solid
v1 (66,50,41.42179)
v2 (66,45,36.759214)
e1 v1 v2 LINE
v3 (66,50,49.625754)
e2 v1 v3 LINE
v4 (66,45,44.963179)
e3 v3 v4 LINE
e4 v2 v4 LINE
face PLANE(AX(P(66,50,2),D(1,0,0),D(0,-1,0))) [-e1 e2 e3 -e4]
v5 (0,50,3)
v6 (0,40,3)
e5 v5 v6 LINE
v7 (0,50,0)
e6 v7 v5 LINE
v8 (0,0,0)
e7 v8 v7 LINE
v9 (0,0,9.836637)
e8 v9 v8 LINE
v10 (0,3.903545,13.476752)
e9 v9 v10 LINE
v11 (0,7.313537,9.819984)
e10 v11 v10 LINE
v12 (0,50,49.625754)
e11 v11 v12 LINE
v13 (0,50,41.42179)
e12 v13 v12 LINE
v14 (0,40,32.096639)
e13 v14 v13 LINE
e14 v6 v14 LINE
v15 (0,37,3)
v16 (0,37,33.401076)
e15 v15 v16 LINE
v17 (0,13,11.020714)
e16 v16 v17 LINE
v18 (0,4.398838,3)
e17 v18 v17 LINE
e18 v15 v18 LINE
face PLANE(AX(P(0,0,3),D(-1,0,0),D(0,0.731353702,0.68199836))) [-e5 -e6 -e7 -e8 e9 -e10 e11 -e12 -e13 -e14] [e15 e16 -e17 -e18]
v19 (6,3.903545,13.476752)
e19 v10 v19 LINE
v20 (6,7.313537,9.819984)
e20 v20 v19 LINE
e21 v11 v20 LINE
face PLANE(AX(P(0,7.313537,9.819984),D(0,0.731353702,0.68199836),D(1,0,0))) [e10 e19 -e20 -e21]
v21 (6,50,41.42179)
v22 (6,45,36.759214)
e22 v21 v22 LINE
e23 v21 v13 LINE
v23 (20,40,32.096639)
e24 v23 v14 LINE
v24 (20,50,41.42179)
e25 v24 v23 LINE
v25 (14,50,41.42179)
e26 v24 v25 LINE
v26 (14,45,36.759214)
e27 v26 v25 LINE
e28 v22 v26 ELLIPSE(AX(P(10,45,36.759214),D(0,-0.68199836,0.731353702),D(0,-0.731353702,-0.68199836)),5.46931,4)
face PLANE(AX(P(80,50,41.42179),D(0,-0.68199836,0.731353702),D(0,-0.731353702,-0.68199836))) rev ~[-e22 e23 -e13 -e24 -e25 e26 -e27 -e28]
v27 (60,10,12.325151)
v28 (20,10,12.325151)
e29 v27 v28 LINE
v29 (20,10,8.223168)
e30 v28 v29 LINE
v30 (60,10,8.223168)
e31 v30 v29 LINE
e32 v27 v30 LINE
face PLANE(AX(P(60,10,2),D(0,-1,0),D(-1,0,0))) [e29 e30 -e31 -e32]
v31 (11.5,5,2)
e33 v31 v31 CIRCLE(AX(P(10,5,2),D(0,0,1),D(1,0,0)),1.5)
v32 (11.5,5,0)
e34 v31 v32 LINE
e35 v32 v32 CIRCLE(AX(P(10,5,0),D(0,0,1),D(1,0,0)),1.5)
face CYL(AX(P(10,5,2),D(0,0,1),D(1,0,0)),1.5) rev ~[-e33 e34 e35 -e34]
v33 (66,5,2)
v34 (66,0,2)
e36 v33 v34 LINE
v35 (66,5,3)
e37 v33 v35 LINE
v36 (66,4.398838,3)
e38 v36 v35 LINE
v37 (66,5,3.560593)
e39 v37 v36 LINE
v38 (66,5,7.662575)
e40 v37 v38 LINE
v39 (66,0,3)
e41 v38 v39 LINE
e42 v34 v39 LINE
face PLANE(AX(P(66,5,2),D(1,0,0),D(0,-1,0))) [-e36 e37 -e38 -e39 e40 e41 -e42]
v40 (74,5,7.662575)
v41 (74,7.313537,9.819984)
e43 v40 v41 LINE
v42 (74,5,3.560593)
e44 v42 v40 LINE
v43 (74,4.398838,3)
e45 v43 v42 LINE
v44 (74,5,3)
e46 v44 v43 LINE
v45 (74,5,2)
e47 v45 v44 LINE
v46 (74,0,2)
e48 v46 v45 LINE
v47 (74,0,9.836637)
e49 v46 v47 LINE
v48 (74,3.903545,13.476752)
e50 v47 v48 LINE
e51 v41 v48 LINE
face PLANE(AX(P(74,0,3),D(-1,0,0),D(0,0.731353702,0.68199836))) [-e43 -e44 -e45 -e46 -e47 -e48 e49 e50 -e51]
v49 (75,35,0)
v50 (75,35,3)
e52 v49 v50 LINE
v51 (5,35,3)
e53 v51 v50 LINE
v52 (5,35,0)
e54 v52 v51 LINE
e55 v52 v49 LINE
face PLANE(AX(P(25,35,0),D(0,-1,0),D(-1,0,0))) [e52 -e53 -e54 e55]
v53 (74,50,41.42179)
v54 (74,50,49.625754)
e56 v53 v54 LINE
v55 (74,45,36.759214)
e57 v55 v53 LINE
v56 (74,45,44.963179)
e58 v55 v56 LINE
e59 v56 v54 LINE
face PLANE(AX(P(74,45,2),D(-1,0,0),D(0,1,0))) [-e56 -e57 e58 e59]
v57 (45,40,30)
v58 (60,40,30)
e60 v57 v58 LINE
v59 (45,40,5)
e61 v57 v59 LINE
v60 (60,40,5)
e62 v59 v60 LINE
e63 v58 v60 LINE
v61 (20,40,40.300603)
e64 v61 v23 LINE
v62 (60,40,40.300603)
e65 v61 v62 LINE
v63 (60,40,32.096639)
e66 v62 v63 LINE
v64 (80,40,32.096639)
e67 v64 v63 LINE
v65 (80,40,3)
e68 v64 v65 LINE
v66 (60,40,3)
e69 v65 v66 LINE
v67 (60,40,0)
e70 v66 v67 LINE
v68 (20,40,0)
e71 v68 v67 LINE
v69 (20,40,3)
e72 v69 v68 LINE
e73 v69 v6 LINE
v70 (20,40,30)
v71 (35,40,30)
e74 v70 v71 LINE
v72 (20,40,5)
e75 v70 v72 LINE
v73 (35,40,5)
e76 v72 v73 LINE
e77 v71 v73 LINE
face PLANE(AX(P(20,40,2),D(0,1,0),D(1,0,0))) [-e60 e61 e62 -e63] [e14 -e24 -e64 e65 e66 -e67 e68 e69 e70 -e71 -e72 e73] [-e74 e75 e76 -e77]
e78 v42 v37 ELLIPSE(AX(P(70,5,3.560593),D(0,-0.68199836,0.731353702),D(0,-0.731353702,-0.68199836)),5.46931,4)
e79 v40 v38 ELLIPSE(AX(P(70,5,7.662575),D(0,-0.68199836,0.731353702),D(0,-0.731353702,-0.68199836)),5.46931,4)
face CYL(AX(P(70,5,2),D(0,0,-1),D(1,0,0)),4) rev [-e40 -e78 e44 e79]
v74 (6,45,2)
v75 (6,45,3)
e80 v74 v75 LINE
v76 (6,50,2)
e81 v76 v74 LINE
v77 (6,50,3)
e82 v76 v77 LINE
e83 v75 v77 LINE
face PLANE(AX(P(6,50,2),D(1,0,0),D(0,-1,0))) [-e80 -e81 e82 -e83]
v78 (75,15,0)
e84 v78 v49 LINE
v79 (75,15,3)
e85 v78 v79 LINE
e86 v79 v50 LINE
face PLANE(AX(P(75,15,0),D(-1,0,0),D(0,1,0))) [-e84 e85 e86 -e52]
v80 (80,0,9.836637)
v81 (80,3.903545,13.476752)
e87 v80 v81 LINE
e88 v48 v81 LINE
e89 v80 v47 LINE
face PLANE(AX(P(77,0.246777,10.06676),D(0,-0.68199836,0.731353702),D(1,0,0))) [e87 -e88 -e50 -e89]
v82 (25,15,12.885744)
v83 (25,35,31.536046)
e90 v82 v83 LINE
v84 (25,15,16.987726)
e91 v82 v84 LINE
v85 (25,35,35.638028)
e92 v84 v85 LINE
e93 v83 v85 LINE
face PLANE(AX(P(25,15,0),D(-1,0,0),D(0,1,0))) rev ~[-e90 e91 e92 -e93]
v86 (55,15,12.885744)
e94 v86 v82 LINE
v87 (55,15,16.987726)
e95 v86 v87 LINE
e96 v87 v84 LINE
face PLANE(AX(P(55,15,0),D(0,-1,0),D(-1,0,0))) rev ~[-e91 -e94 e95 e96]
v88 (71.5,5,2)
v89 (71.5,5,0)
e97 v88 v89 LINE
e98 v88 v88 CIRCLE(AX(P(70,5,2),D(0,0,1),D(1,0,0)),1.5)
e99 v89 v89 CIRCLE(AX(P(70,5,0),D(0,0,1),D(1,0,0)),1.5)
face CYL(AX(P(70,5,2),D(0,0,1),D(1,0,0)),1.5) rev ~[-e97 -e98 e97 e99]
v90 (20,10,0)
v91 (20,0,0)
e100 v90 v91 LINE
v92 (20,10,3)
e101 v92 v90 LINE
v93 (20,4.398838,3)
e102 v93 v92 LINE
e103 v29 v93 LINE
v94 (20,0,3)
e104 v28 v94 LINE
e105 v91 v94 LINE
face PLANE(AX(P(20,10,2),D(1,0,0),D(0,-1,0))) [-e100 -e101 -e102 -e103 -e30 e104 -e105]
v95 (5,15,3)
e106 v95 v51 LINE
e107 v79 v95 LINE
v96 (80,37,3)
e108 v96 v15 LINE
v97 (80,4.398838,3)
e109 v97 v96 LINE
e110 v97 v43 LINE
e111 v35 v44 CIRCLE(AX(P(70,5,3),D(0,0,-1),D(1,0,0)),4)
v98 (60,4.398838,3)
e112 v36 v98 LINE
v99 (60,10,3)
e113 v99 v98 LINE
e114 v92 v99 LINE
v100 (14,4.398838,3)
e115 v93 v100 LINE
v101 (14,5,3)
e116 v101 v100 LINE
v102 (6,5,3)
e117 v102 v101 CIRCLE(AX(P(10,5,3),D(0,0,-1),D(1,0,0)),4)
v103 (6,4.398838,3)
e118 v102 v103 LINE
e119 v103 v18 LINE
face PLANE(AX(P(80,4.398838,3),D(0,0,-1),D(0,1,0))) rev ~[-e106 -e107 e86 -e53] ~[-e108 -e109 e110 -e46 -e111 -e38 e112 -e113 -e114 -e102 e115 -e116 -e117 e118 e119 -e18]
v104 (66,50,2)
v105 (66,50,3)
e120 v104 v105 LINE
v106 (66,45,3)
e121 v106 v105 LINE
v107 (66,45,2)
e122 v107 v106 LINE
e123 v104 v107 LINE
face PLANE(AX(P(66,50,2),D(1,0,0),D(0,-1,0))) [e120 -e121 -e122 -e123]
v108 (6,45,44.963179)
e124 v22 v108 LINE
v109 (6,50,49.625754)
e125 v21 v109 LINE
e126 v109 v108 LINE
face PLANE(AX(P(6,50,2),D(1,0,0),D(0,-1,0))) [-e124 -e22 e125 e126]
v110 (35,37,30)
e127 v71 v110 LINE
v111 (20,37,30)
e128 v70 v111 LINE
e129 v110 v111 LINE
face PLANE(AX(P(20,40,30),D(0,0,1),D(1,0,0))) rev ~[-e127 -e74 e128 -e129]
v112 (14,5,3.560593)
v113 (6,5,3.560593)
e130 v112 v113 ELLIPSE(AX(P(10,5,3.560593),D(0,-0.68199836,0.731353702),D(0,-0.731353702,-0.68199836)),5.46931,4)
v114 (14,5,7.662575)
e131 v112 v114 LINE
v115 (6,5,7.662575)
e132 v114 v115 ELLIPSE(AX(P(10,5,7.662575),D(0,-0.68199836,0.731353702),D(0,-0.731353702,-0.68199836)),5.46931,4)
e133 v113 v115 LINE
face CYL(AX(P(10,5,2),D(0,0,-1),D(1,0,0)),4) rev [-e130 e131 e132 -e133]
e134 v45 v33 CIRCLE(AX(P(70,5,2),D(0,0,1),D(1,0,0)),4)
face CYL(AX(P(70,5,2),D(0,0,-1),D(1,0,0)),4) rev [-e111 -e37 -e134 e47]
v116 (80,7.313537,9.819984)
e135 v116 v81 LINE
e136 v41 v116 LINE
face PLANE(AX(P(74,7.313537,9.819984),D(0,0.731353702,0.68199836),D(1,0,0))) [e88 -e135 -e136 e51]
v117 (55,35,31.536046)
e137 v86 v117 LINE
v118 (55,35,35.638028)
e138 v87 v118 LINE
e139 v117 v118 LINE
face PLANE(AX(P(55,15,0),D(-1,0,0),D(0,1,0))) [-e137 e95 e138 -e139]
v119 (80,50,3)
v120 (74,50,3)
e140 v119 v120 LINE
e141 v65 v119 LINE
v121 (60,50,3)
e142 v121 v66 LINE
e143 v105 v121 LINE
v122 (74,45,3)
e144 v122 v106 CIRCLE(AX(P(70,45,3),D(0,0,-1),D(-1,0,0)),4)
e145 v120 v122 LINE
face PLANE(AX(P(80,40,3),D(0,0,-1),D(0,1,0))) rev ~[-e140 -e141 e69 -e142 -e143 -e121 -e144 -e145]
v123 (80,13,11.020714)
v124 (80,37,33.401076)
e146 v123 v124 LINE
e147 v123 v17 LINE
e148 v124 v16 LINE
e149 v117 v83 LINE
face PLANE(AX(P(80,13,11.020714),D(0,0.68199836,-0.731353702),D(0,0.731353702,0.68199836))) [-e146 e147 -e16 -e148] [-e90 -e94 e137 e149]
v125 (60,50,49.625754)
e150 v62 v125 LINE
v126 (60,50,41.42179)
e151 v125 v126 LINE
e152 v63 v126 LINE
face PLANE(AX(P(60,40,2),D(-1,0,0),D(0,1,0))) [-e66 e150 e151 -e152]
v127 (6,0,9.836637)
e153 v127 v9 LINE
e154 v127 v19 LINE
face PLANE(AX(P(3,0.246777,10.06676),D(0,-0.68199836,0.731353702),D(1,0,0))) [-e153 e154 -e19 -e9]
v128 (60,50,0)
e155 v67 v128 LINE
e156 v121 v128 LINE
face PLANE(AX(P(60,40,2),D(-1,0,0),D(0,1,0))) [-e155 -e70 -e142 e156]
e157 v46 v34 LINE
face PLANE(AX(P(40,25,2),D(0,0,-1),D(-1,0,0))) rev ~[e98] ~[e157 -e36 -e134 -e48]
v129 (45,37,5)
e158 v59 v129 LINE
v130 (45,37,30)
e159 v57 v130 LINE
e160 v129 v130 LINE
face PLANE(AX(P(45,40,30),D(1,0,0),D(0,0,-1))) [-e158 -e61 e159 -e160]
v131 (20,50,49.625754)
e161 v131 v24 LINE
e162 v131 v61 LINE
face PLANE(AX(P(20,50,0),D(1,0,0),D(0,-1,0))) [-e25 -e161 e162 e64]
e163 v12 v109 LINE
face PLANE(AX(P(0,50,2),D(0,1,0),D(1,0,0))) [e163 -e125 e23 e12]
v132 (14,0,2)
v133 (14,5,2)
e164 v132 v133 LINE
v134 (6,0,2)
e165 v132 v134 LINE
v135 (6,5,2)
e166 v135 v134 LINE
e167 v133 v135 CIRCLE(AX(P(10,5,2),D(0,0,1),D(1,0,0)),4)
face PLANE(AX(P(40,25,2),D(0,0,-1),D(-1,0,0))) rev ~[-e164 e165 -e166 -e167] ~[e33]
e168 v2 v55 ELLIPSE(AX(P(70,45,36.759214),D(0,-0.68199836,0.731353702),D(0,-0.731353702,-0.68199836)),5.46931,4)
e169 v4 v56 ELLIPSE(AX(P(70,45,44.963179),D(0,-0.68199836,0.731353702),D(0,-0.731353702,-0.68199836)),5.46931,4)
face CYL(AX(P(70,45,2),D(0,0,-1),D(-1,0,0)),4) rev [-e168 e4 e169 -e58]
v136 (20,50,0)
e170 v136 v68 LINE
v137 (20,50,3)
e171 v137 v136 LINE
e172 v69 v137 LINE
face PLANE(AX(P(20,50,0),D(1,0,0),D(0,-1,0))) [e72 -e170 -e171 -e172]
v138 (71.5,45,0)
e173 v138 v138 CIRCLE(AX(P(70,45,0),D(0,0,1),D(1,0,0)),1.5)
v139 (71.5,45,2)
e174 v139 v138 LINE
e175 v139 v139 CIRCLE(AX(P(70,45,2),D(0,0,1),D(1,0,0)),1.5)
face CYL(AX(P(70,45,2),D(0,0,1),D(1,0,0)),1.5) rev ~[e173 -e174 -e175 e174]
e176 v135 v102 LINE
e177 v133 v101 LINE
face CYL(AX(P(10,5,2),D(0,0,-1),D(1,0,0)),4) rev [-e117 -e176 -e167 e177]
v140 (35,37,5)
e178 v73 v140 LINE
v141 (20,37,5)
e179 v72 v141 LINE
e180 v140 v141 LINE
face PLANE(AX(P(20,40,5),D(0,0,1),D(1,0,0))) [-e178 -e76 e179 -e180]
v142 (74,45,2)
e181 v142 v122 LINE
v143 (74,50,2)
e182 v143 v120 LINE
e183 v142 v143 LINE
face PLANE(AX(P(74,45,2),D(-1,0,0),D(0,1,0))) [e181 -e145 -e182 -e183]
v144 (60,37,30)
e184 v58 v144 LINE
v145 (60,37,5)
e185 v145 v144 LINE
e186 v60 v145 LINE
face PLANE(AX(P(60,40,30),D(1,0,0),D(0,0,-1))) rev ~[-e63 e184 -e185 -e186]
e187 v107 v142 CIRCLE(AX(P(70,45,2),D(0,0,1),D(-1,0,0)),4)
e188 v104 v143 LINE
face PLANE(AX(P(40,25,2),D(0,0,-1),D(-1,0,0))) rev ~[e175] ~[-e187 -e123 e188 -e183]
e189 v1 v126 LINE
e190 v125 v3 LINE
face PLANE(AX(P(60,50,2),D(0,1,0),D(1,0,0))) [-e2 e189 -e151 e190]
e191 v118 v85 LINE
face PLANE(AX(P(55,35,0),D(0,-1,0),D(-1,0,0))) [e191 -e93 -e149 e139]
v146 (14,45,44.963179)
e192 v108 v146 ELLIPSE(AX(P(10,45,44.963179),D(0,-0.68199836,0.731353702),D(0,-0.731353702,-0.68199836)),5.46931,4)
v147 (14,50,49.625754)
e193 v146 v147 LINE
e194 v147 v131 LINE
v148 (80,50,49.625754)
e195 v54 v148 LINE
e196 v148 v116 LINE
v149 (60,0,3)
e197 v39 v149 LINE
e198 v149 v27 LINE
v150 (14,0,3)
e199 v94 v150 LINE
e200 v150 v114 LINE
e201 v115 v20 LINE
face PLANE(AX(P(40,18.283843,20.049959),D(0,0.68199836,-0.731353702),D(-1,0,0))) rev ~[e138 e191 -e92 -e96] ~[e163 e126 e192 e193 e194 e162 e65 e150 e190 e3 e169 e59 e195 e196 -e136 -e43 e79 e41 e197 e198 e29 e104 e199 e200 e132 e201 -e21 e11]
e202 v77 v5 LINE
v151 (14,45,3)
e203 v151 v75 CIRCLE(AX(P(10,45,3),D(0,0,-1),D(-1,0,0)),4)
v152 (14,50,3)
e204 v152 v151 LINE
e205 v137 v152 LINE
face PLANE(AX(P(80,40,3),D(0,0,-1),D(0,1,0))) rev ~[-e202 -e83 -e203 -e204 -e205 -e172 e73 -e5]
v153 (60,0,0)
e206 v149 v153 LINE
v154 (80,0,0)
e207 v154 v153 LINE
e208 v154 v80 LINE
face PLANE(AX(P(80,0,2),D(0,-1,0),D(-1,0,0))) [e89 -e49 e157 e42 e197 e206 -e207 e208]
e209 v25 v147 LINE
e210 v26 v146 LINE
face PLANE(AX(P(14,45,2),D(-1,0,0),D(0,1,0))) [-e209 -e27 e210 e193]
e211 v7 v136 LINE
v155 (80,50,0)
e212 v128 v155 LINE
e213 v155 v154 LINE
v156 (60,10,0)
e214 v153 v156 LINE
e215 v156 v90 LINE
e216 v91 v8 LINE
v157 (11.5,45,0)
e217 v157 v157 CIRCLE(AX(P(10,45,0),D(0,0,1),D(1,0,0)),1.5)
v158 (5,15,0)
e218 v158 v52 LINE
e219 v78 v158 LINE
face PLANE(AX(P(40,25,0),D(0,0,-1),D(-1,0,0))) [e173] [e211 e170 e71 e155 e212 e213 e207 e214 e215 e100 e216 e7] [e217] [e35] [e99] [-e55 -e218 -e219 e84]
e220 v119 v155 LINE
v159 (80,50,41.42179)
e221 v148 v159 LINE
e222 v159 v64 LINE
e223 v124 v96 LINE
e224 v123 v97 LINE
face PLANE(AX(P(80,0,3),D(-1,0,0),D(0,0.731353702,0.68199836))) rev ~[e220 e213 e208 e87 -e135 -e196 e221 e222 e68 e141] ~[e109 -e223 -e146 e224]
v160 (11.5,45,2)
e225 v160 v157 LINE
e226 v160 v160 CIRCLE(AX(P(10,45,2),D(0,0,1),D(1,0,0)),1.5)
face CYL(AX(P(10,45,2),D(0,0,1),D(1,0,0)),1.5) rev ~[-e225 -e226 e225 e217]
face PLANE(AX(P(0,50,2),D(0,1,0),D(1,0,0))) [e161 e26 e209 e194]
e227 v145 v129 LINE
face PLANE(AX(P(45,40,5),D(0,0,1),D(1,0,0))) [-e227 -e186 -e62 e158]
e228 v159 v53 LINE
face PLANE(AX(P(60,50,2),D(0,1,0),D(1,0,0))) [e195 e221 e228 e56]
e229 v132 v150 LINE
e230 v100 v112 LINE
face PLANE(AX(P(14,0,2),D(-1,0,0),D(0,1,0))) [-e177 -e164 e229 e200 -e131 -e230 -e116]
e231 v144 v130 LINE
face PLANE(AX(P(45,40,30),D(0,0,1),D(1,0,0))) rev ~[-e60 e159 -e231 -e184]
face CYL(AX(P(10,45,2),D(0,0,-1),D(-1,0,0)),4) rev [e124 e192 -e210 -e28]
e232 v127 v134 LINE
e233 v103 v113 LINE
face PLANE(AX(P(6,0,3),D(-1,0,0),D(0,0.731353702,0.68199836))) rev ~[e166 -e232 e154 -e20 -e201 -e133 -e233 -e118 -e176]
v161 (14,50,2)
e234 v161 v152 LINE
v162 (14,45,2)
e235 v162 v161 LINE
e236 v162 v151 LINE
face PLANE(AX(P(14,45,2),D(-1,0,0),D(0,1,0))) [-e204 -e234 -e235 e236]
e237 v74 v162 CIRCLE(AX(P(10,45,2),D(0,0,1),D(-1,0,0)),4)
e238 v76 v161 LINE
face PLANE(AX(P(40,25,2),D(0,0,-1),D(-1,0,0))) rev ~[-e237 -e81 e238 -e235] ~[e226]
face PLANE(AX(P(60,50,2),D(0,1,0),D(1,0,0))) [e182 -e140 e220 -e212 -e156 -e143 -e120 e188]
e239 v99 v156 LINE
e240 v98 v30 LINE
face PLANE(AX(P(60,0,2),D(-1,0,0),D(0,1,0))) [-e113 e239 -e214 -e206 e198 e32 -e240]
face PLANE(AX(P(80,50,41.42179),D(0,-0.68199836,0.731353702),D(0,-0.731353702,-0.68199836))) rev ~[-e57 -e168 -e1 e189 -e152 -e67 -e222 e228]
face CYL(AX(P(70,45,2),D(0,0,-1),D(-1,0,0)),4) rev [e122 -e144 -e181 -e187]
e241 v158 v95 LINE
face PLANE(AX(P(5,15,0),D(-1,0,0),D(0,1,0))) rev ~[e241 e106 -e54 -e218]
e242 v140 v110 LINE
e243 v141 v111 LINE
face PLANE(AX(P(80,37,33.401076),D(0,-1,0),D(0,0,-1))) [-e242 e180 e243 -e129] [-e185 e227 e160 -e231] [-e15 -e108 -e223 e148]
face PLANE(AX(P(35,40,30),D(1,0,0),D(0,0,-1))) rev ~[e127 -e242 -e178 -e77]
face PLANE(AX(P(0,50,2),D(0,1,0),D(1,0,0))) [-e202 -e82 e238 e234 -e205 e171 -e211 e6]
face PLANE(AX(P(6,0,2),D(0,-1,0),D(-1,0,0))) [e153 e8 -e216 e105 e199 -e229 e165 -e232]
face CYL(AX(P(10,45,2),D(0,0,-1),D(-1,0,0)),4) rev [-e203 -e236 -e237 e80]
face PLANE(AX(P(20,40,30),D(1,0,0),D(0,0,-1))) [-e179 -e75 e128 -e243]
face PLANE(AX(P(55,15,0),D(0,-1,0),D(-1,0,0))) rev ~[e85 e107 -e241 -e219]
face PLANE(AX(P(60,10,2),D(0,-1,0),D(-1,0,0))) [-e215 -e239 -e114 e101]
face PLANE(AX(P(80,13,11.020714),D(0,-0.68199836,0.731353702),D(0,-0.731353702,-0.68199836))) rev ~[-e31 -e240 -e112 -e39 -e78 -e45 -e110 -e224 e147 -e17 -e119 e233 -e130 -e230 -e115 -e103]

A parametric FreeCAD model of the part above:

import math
import FreeCAD as App
import Part
import Sketcher
from FreeCAD import Vector
Q = App.Units.Quantity


def faces_at(feature, points):
    """Names of the faces that lie closest to the given points."""
    faces = feature.Shape.Faces
    near = lambda p: min(range(len(faces)), key=lambda i: faces[i].distToShape(Part.Vertex(*p))[0])
    return sorted({f"Face{near(p) + 1}" for p in points})


def add_polygon(sketch, points):
    """Adds a closed chain of lines whose ends are joined by coincident constraints."""
    first, n = sketch.GeometryCount, len(points)
    for a, b in zip(points, points[1:] + points[:1]):
        sketch.addGeometry(Part.LineSegment(App.Vector(*a, 0), App.Vector(*b, 0)), False)
    for i in range(n):
        sketch.addConstraint(Sketcher.Constraint("Coincident", first + i, 2, first + (i + 1) % n, 1))

doc = App.newDocument("Part")
body = doc.addObject("PartDesign::Body", "Body")

sketch1 = body.newObject("Sketcher::SketchObject", "Sketch")
sketch1.AttachmentSupport = (doc.getObject("XY_Plane"), [""])
sketch1.MapMode = "FlatFace"
add_polygon(sketch1, [(0, 50), (0, 0), (20, 0), (20, 10), (60, 10), (60, 0), (80, 0), (80, 50), (60, 50), (60, 40), (20, 40), (20, 50)])
sketch1.addConstraint(Sketcher.Constraint("Vertical", 0))
sketch1.addConstraint(Sketcher.Constraint("Horizontal", 1))
sketch1.addConstraint(Sketcher.Constraint("Vertical", 2))
sketch1.addConstraint(Sketcher.Constraint("Horizontal", 3))
sketch1.addConstraint(Sketcher.Constraint("Vertical", 4))
sketch1.addConstraint(Sketcher.Constraint("Horizontal", 5))
sketch1.addConstraint(Sketcher.Constraint("Vertical", 6))
sketch1.addConstraint(Sketcher.Constraint("Horizontal", 7))
sketch1.addConstraint(Sketcher.Constraint("Vertical", 8))
sketch1.addConstraint(Sketcher.Constraint("Horizontal", 9))
sketch1.addConstraint(Sketcher.Constraint("Vertical", 10))
sketch1.addConstraint(Sketcher.Constraint("Horizontal", 11))
sketch1.addConstraint(Sketcher.Constraint("Coincident", 0, 2, -1, 1))
sketch1.addConstraint(Sketcher.Constraint("PointOnObject", 4, 2, -1))
sketch1.addConstraint(Sketcher.Constraint("Horizontal", 7, 2, 10, 2))
sketch1.addConstraint(Sketcher.Constraint("Vertical", 4, 2, 7, 2))
sketch1.addConstraint(Sketcher.Constraint("Vertical", 2, 2, 9, 2))
sketch1.addConstraint(Sketcher.Constraint("Equal", 1, 5))
sketch1.addConstraint(Sketcher.Constraint("Equal", 4, 8))
sketch1.addConstraint(Sketcher.Constraint("DistanceX", 1, 1, 1, 2, Q("20 mm")))
sketch1.addConstraint(Sketcher.Constraint("DistanceX", 3, 1, 3, 2, Q("40 mm")))
sketch1.addConstraint(Sketcher.Constraint("DistanceY", 0, 2, 0, 1, Q("50 mm")))
sketch1.addConstraint(Sketcher.Constraint("DistanceY", 2, 1, 2, 2, Q("10 mm")))
pad1 = body.newObject("PartDesign::Pad", "Pad")
pad1.Profile = sketch1
pad1.Length = 2

sketch2 = body.newObject("Sketcher::SketchObject", "Sketch001")
sketch2.AttachmentSupport = (doc.getObject("XY_Plane"), [""])
sketch2.MapMode = "FlatFace"
sketch2.AttachmentOffset = App.Placement(Vector(0, 0, 2), App.Rotation())
sketch2.addGeometry(Part.Circle(Vector(10, 45, 0), Vector(0, 0, 1), 1.5), False)
sketch2.addGeometry(Part.Circle(Vector(10, 5, 0), Vector(0, 0, 1), 1.5), False)
sketch2.addGeometry(Part.Circle(Vector(70, 45, 0), Vector(0, 0, 1), 1.5), False)
sketch2.addGeometry(Part.Circle(Vector(70, 5, 0), Vector(0, 0, 1), 1.5), False)
sketch2.addConstraint(Sketcher.Constraint("Equal", 0, 1))
sketch2.addConstraint(Sketcher.Constraint("Equal", 1, 2))
sketch2.addConstraint(Sketcher.Constraint("Equal", 2, 3))
sketch2.addConstraint(Sketcher.Constraint("Horizontal", 0, 3, 2, 3))
sketch2.addConstraint(Sketcher.Constraint("Horizontal", 1, 3, 3, 3))
sketch2.addConstraint(Sketcher.Constraint("Vertical", 0, 3, 1, 3))
sketch2.addConstraint(Sketcher.Constraint("Vertical", 2, 3, 3, 3))
sketch2.addConstraint(Sketcher.Constraint("Diameter", 0, Q("3 mm")))
sketch2.addConstraint(Sketcher.Constraint("DistanceX", -1, 1, 0, 3, Q("10 mm")))
sketch2.addConstraint(Sketcher.Constraint("DistanceY", -1, 1, 0, 3, Q("45 mm")))
sketch2.addConstraint(Sketcher.Constraint("DistanceY", -1, 1, 1, 3, Q("5 mm")))
sketch2.addConstraint(Sketcher.Constraint("DistanceX", -1, 1, 2, 3, Q("70 mm")))
pocket1 = body.newObject("PartDesign::Pocket", "Pocket")
pocket1.Profile = sketch2
pocket1.Type = "ThroughAll"

sketch3 = body.newObject("Sketcher::SketchObject", "Sketch002")
sketch3.AttachmentSupport = (doc.getObject("XY_Plane"), [""])
sketch3.MapMode = "FlatFace"
sketch3.AttachmentOffset = App.Placement(Vector(0, 0, 2), App.Rotation())
sketch3.addGeometry(Part.LineSegment(Vector(6, 50, 0), Vector(0, 50, 0)), False)
sketch3.addGeometry(Part.LineSegment(Vector(0, 50, 0), Vector(0, 0, 0)), False)
sketch3.addGeometry(Part.LineSegment(Vector(0, 0, 0), Vector(6, 0, 0)), False)
sketch3.addGeometry(Part.LineSegment(Vector(6, 0, 0), Vector(6, 5, 0)), False)
sketch3.addGeometry(Part.ArcOfCircle(Part.Circle(Vector(10, 5, 0), Vector(0, 0, 1), 4), math.radians(0), math.radians(180)), False)
sketch3.addGeometry(Part.LineSegment(Vector(14, 5, 0), Vector(14, 0, 0)), False)
sketch3.addGeometry(Part.LineSegment(Vector(14, 0, 0), Vector(20, 0, 0)), False)
sketch3.addGeometry(Part.LineSegment(Vector(20, 0, 0), Vector(20, 10, 0)), False)
sketch3.addGeometry(Part.LineSegment(Vector(20, 10, 0), Vector(60, 10, 0)), False)
sketch3.addGeometry(Part.LineSegment(Vector(60, 10, 0), Vector(60, 0, 0)), False)
sketch3.addGeometry(Part.LineSegment(Vector(60, 0, 0), Vector(66, 0, 0)), False)
sketch3.addGeometry(Part.LineSegment(Vector(66, 0, 0), Vector(66, 5, 0)), False)
sketch3.addGeometry(Part.ArcOfCircle(Part.Circle(Vector(70, 5, 0), Vector(0, 0, 1), 4), math.radians(0), math.radians(180)), False)
sketch3.addGeometry(Part.LineSegment(Vector(74, 5, 0), Vector(74, 0, 0)), False)
sketch3.addGeometry(Part.LineSegment(Vector(74, 0, 0), Vector(80, 0, 0)), False)
sketch3.addGeometry(Part.LineSegment(Vector(80, 0, 0), Vector(80, 50, 0)), False)
sketch3.addGeometry(Part.LineSegment(Vector(80, 50, 0), Vector(74, 50, 0)), False)
sketch3.addGeometry(Part.LineSegment(Vector(74, 50, 0), Vector(74, 45, 0)), False)
sketch3.addGeometry(Part.ArcOfCircle(Part.Circle(Vector(70, 45, 0), Vector(0, 0, 1), 4), math.radians(180), math.radians(360)), False)
sketch3.addGeometry(Part.LineSegment(Vector(66, 45, 0), Vector(66, 50, 0)), False)
sketch3.addGeometry(Part.LineSegment(Vector(66, 50, 0), Vector(60, 50, 0)), False)
sketch3.addGeometry(Part.LineSegment(Vector(60, 50, 0), Vector(60, 40, 0)), False)
sketch3.addGeometry(Part.LineSegment(Vector(60, 40, 0), Vector(20, 40, 0)), False)
sketch3.addGeometry(Part.LineSegment(Vector(20, 40, 0), Vector(20, 50, 0)), False)
sketch3.addGeometry(Part.LineSegment(Vector(20, 50, 0), Vector(14, 50, 0)), False)
sketch3.addGeometry(Part.LineSegment(Vector(14, 50, 0), Vector(14, 45, 0)), False)
sketch3.addGeometry(Part.ArcOfCircle(Part.Circle(Vector(10, 45, 0), Vector(0, 0, 1), 4), math.radians(180), math.radians(360)), False)
sketch3.addGeometry(Part.LineSegment(Vector(6, 45, 0), Vector(6, 50, 0)), False)
sketch3.addConstraint(Sketcher.Constraint("Coincident", 0, 2, 1, 1))
sketch3.addConstraint(Sketcher.Constraint("Coincident", 1, 2, 2, 1))
sketch3.addConstraint(Sketcher.Constraint("Coincident", 2, 2, 3, 1))
sketch3.addConstraint(Sketcher.Constraint("Tangent", 3, 2, 4, 2))
sketch3.addConstraint(Sketcher.Constraint("Tangent", 4, 1, 5, 1))
sketch3.addConstraint(Sketcher.Constraint("Coincident", 5, 2, 6, 1))
sketch3.addConstraint(Sketcher.Constraint("Coincident", 6, 2, 7, 1))
sketch3.addConstraint(Sketcher.Constraint("Coincident", 7, 2, 8, 1))
sketch3.addConstraint(Sketcher.Constraint("Coincident", 8, 2, 9, 1))
sketch3.addConstraint(Sketcher.Constraint("Coincident", 9, 2, 10, 1))
sketch3.addConstraint(Sketcher.Constraint("Coincident", 10, 2, 11, 1))
sketch3.addConstraint(Sketcher.Constraint("Tangent", 11, 2, 12, 2))
sketch3.addConstraint(Sketcher.Constraint("Tangent", 12, 1, 13, 1))
sketch3.addConstraint(Sketcher.Constraint("Coincident", 13, 2, 14, 1))
sketch3.addConstraint(Sketcher.Constraint("Coincident", 14, 2, 15, 1))
sketch3.addConstraint(Sketcher.Constraint("Coincident", 15, 2, 16, 1))
sketch3.addConstraint(Sketcher.Constraint("Coincident", 16, 2, 17, 1))
sketch3.addConstraint(Sketcher.Constraint("Tangent", 17, 2, 18, 2))
sketch3.addConstraint(Sketcher.Constraint("Tangent", 18, 1, 19, 1))
sketch3.addConstraint(Sketcher.Constraint("Coincident", 19, 2, 20, 1))
sketch3.addConstraint(Sketcher.Constraint("Coincident", 20, 2, 21, 1))
sketch3.addConstraint(Sketcher.Constraint("Coincident", 21, 2, 22, 1))
sketch3.addConstraint(Sketcher.Constraint("Coincident", 22, 2, 23, 1))
sketch3.addConstraint(Sketcher.Constraint("Coincident", 23, 2, 24, 1))
sketch3.addConstraint(Sketcher.Constraint("Coincident", 24, 2, 25, 1))
sketch3.addConstraint(Sketcher.Constraint("Tangent", 25, 2, 26, 2))
sketch3.addConstraint(Sketcher.Constraint("Tangent", 26, 1, 27, 1))
sketch3.addConstraint(Sketcher.Constraint("Coincident", 27, 2, 0, 1))
sketch3.addConstraint(Sketcher.Constraint("Horizontal", 0))
sketch3.addConstraint(Sketcher.Constraint("Vertical", 1))
sketch3.addConstraint(Sketcher.Constraint("Horizontal", 2))
sketch3.addConstraint(Sketcher.Constraint("Vertical", 3))
sketch3.addConstraint(Sketcher.Constraint("Vertical", 5))
sketch3.addConstraint(Sketcher.Constraint("Horizontal", 6))
sketch3.addConstraint(Sketcher.Constraint("Vertical", 7))
sketch3.addConstraint(Sketcher.Constraint("Horizontal", 8))
sketch3.addConstraint(Sketcher.Constraint("Vertical", 9))
sketch3.addConstraint(Sketcher.Constraint("Horizontal", 10))
sketch3.addConstraint(Sketcher.Constraint("Vertical", 11))
sketch3.addConstraint(Sketcher.Constraint("Vertical", 13))
sketch3.addConstraint(Sketcher.Constraint("Horizontal", 14))
sketch3.addConstraint(Sketcher.Constraint("Vertical", 15))
sketch3.addConstraint(Sketcher.Constraint("Horizontal", 16))
sketch3.addConstraint(Sketcher.Constraint("Vertical", 17))
sketch3.addConstraint(Sketcher.Constraint("Vertical", 19))
sketch3.addConstraint(Sketcher.Constraint("Horizontal", 20))
sketch3.addConstraint(Sketcher.Constraint("Vertical", 21))
sketch3.addConstraint(Sketcher.Constraint("Horizontal", 22))
sketch3.addConstraint(Sketcher.Constraint("Vertical", 23))
sketch3.addConstraint(Sketcher.Constraint("Horizontal", 24))
sketch3.addConstraint(Sketcher.Constraint("Vertical", 25))
sketch3.addConstraint(Sketcher.Constraint("Vertical", 27))
sketch3.addConstraint(Sketcher.Constraint("Coincident", 1, 2, -1, 1))
sketch3.addConstraint(Sketcher.Constraint("Equal", 4, 12))
sketch3.addConstraint(Sketcher.Constraint("Equal", 12, 18))
sketch3.addConstraint(Sketcher.Constraint("Equal", 18, 26))
sketch3.addConstraint(Sketcher.Constraint("PointOnObject", 5, 2, -1))
sketch3.addConstraint(Sketcher.Constraint("PointOnObject", 9, 2, -1))
sketch3.addConstraint(Sketcher.Constraint("PointOnObject", 13, 2, -1))
sketch3.addConstraint(Sketcher.Constraint("Horizontal", 4, 3, 12, 3))
sketch3.addConstraint(Sketcher.Constraint("Horizontal", 18, 3, 26, 3))
sketch3.addConstraint(Sketcher.Constraint("Horizontal", 0, 2, 15, 2))
sketch3.addConstraint(Sketcher.Constraint("Horizontal", 16, 2, 19, 2))
sketch3.addConstraint(Sketcher.Constraint("Horizontal", 20, 2, 23, 2))
sketch3.addConstraint(Sketcher.Constraint("Vertical", 12, 3, 18, 3))
sketch3.addConstraint(Sketcher.Constraint("Vertical", 4, 3, 26, 3))
sketch3.addConstraint(Sketcher.Constraint("Vertical", 9, 2, 20, 2))
sketch3.addConstraint(Sketcher.Constraint("Vertical", 7, 2, 22, 2))
sketch3.addConstraint(Sketcher.Constraint("Equal", 2, 6))
sketch3.addConstraint(Sketcher.Constraint("Equal", 6, 10))
sketch3.addConstraint(Sketcher.Constraint("Equal", 10, 14))
sketch3.addConstraint(Sketcher.Constraint("Equal", 13, 17))
sketch3.addConstraint(Sketcher.Constraint("Equal", 9, 21))
sketch3.addConstraint(Sketcher.Constraint("Radius", 4, Q("4 mm")))
sketch3.addConstraint(Sketcher.Constraint("DistanceX", 0, 2, 0, 1, Q("6 mm")))
sketch3.addConstraint(Sketcher.Constraint("DistanceX", 8, 1, 8, 2, Q("40 mm")))
sketch3.addConstraint(Sketcher.Constraint("DistanceY", 1, 2, 1, 1, Q("50 mm")))
sketch3.addConstraint(Sketcher.Constraint("DistanceY", 3, 1, 3, 2, Q("5 mm")))
sketch3.addConstraint(Sketcher.Constraint("DistanceY", 7, 1, 7, 2, Q("10 mm")))
pad2 = body.newObject("PartDesign::Pad", "Pad001")
pad2.Profile = sketch3
pad2.Length = 1
doc.recompute()

draft = body.newObject("PartDesign::Draft", "Draft")
draft.Base = (pad2, faces_at(pad2, [(40, 25, 3)]))
draft.NeutralPlane = (doc.getObject("XZ_Plane"), [""])
draft.Angle = 43
draft.Reversed = False

sketch4 = body.newObject("Sketcher::SketchObject", "Sketch003")
sketch4.Placement = App.Placement(Vector(0, -1.496346, 1.604635), App.Rotation(Vector(1, 0, 0), Vector(0, 0.731353702, 0.68199836), Vector(0, -0.68199836, 0.731353702), "ZXY"))
add_polygon(sketch4, [(0, 12), (0, 2), (6, 2), (6, 12)])
sketch4.addConstraint(Sketcher.Constraint("Vertical", 0))
sketch4.addConstraint(Sketcher.Constraint("Horizontal", 1))
sketch4.addConstraint(Sketcher.Constraint("Vertical", 2))
sketch4.addConstraint(Sketcher.Constraint("Horizontal", 3))
sketch4.addConstraint(Sketcher.Constraint("PointOnObject", 0, 2, -2))
sketch4.addConstraint(Sketcher.Constraint("DistanceX", 1, 1, 1, 2, Q("6 mm")))
sketch4.addConstraint(Sketcher.Constraint("DistanceY", 0, 2, 0, 1, Q("10 mm")))
sketch4.addConstraint(Sketcher.Constraint("DistanceY", -1, 1, 0, 2, Q("2.045995 mm")))
pad3 = body.newObject("PartDesign::Pad", "Pad002")
pad3.Profile = sketch4
pad3.Length = 5

sketch5 = body.newObject("Sketcher::SketchObject", "Sketch004")
sketch5.Placement = App.Placement(Vector(0, -1.496346, 1.604635), App.Rotation(Vector(1, 0, 0), Vector(0, 0.731353702, 0.68199836), Vector(0, -0.68199836, 0.731353702), "ZXY"))
add_polygon(sketch5, [(74, 12), (74, 2), (80, 2), (80, 12)])
sketch5.addConstraint(Sketcher.Constraint("Vertical", 0))
sketch5.addConstraint(Sketcher.Constraint("Horizontal", 1))
sketch5.addConstraint(Sketcher.Constraint("Vertical", 2))
sketch5.addConstraint(Sketcher.Constraint("Horizontal", 3))
sketch5.addConstraint(Sketcher.Constraint("DistanceX", 1, 1, 1, 2, Q("6 mm")))
sketch5.addConstraint(Sketcher.Constraint("DistanceY", 0, 2, 0, 1, Q("10 mm")))
sketch5.addConstraint(Sketcher.Constraint("DistanceX", -1, 1, 0, 2, Q("74 mm")))
sketch5.addConstraint(Sketcher.Constraint("DistanceY", -1, 1, 0, 2, Q("2.045995 mm")))
pad4 = body.newObject("PartDesign::Pad", "Pad003")
pad4.Profile = sketch5
pad4.Length = 5

sketch6 = body.newObject("Sketcher::SketchObject", "Sketch005")
sketch6.AttachmentSupport = (doc.getObject("YZ_Plane"), [""])
sketch6.MapMode = "FlatFace"
sketch6.AttachmentOffset = App.Placement(Vector(0, 0, 80), App.Rotation())
add_polygon(sketch6, [(0, 3), (0, 9.8), (-3.4, 6.7)])
sketch6.addConstraint(Sketcher.Constraint("Vertical", 0))
sketch6.addConstraint(Sketcher.Constraint("PointOnObject", 0, 2, -2))
sketch6.addConstraint(Sketcher.Constraint("Perpendicular", 1, 2))
sketch6.addConstraint(Sketcher.Constraint("Angle", 1, Q("-137 deg")))
sketch6.addConstraint(Sketcher.Constraint("Distance", 2, Q("5 mm")))
sketch6.addConstraint(Sketcher.Constraint("DistanceY", -1, 1, 2, 2, Q("3 mm")))
pocket2 = body.newObject("PartDesign::Pocket", "Pocket001")
pocket2.Profile = sketch6
pocket2.Type = "ThroughAll"

sketch7 = body.newObject("Sketcher::SketchObject", "Sketch006")
sketch7.AttachmentSupport = (doc.getObject("YZ_Plane"), [""])
sketch7.MapMode = "FlatFace"
sketch7.AttachmentOffset = App.Placement(Vector(0, 0, 80), App.Rotation())
add_polygon(sketch7, [(13, 3), (37, 3), (37, 33), (13, 11)])
sketch7.addConstraint(Sketcher.Constraint("Horizontal", 0))
sketch7.addConstraint(Sketcher.Constraint("Vertical", 1))
sketch7.addConstraint(Sketcher.Constraint("Vertical", 3))
sketch7.addConstraint(Sketcher.Constraint("DistanceX", 0, 1, 0, 2, Q("24 mm")))
sketch7.addConstraint(Sketcher.Constraint("Angle", 2, Q("-137 deg")))
sketch7.addConstraint(Sketcher.Constraint("DistanceX", -1, 1, 0, 2, Q("37 mm")))
sketch7.addConstraint(Sketcher.Constraint("DistanceY", -1, 1, 0, 2, Q("3 mm")))
sketch7.addConstraint(Sketcher.Constraint("DistanceY", 1, 1, 1, 2, Q("30.401076 mm")))
pocket3 = body.newObject("PartDesign::Pocket", "Pocket002")
pocket3.Profile = sketch7
pocket3.Type = "ThroughAll"

sketch8 = body.newObject("Sketcher::SketchObject", "Sketch007")
sketch8.AttachmentSupport = (doc.getObject("YZ_Plane"), [""])
sketch8.MapMode = "FlatFace"
sketch8.AttachmentOffset = App.Placement(Vector(0, 0, 80), App.Rotation())
add_polygon(sketch8, [(50, 3), (50, 41), (40, 32), (40, 3)])
sketch8.addConstraint(Sketcher.Constraint("Vertical", 0))
sketch8.addConstraint(Sketcher.Constraint("Vertical", 2))
sketch8.addConstraint(Sketcher.Constraint("Horizontal", 3))
sketch8.addConstraint(Sketcher.Constraint("DistanceX", 3, 1, 3, 2, Q("10 mm")))
sketch8.addConstraint(Sketcher.Constraint("Angle", 1, Q("-137 deg")))
sketch8.addConstraint(Sketcher.Constraint("DistanceX", -1, 1, 0, 2, Q("50 mm")))
sketch8.addConstraint(Sketcher.Constraint("DistanceY", -1, 1, 2, 2, Q("3 mm")))
sketch8.addConstraint(Sketcher.Constraint("DistanceY", 0, 1, 0, 2, Q("38.42179 mm")))
pocket4 = body.newObject("PartDesign::Pocket", "Pocket003")
pocket4.Profile = sketch8
pocket4.Type = "ThroughAll"

sketch9 = body.newObject("Sketcher::SketchObject", "Sketch008")
sketch9.AttachmentSupport = (doc.getObject("YZ_Plane"), [""])
sketch9.MapMode = "FlatFace"
sketch9.AttachmentOffset = App.Placement(Vector(0, 0, 80), App.Rotation())
add_polygon(sketch9, [(13, 11), (4, 3), (13, 3)])
sketch9.addConstraint(Sketcher.Constraint("Horizontal", 1))
sketch9.addConstraint(Sketcher.Constraint("Vertical", 2))
sketch9.addConstraint(Sketcher.Constraint("Angle", 0, Q("-137 deg")))
sketch9.addConstraint(Sketcher.Constraint("DistanceY", -1, 1, 0, 2, Q("3 mm")))
sketch9.addConstraint(Sketcher.Constraint("DistanceX", -1, 1, 1, 2, Q("13 mm")))
sketch9.addConstraint(Sketcher.Constraint("DistanceX", 1, 1, 1, 2, Q("8.601162 mm")))
pocket5 = body.newObject("PartDesign::Pocket", "Pocket004")
pocket5.Profile = sketch9
pocket5.Type = "ThroughAll"

sketch10 = body.newObject("Sketcher::SketchObject", "Sketch009")
sketch10.AttachmentSupport = (doc.getObject("XY_Plane"), [""])
sketch10.MapMode = "FlatFace"
add_polygon(sketch10, [(55, 35), (55, 15), (25, 15), (25, 35)])
sketch10.addConstraint(Sketcher.Constraint("Vertical", 0))
sketch10.addConstraint(Sketcher.Constraint("Horizontal", 1))
sketch10.addConstraint(Sketcher.Constraint("Vertical", 2))
sketch10.addConstraint(Sketcher.Constraint("Horizontal", 3))
sketch10.addConstraint(Sketcher.Constraint("DistanceX", 1, 2, 1, 1, Q("30 mm")))
sketch10.addConstraint(Sketcher.Constraint("DistanceY", 0, 2, 0, 1, Q("20 mm")))
sketch10.addConstraint(Sketcher.Constraint("DistanceX", -1, 1, 0, 2, Q("55 mm")))
sketch10.addConstraint(Sketcher.Constraint("DistanceY", -1, 1, 0, 2, Q("15 mm")))
pocket6 = body.newObject("PartDesign::Pocket", "Pocket005")
pocket6.Profile = sketch10
pocket6.Type = "ThroughAll"
pocket6.Reversed = True

sketch11 = body.newObject("Sketcher::SketchObject", "Sketch010")
sketch11.AttachmentSupport = (doc.getObject("XY_Plane"), [""])
sketch11.MapMode = "FlatFace"
add_polygon(sketch11, [(25, 35), (25, 15), (5, 15), (5, 35)])
add_polygon(sketch11, [(75, 35), (75, 15), (55, 15), (55, 35)])
sketch11.addConstraint(Sketcher.Constraint("Vertical", 0))
sketch11.addConstraint(Sketcher.Constraint("Horizontal", 1))
sketch11.addConstraint(Sketcher.Constraint("Vertical", 2))
sketch11.addConstraint(Sketcher.Constraint("Horizontal", 3))
sketch11.addConstraint(Sketcher.Constraint("Vertical", 4))
sketch11.addConstraint(Sketcher.Constraint("Horizontal", 5))
sketch11.addConstraint(Sketcher.Constraint("Vertical", 6))
sketch11.addConstraint(Sketcher.Constraint("Horizontal", 7))
sketch11.addConstraint(Sketcher.Constraint("Horizontal", 1, 2, 4, 2))
sketch11.addConstraint(Sketcher.Constraint("Horizontal", 3, 2, 6, 2))
sketch11.addConstraint(Sketcher.Constraint("Equal", 3, 5))
sketch11.addConstraint(Sketcher.Constraint("Equal", 7, 0))
sketch11.addConstraint(Sketcher.Constraint("DistanceX", 1, 2, 1, 1, Q("20 mm")))
sketch11.addConstraint(Sketcher.Constraint("DistanceX", -1, 1, 0, 2, Q("25 mm")))
sketch11.addConstraint(Sketcher.Constraint("DistanceY", -1, 1, 0, 2, Q("15 mm")))
sketch11.addConstraint(Sketcher.Constraint("DistanceX", -1, 1, 4, 2, Q("75 mm")))
pocket7 = body.newObject("PartDesign::Pocket", "Pocket006")
pocket7.Profile = sketch11
pocket7.Length = 5
pocket7.Reversed = True

sketch12 = body.newObject("Sketcher::SketchObject", "Sketch011")
sketch12.AttachmentSupport = (doc.getObject("XZ_Plane"), [""])
sketch12.MapMode = "FlatFace"
sketch12.AttachmentOffset = App.Placement(Vector(0, 0, -40), App.Rotation())
add_polygon(sketch12, [(45, 5), (45, 30), (60, 30), (60, 5)])
add_polygon(sketch12, [(20, 5), (20, 30), (35, 30), (35, 5)])
sketch12.addConstraint(Sketcher.Constraint("Vertical", 0))
sketch12.addConstraint(Sketcher.Constraint("Horizontal", 1))
sketch12.addConstraint(Sketcher.Constraint("Vertical", 2))
sketch12.addConstraint(Sketcher.Constraint("Horizontal", 3))
sketch12.addConstraint(Sketcher.Constraint("Vertical", 4))
sketch12.addConstraint(Sketcher.Constraint("Horizontal", 5))
sketch12.addConstraint(Sketcher.Constraint("Vertical", 6))
sketch12.addConstraint(Sketcher.Constraint("Horizontal", 7))
sketch12.addConstraint(Sketcher.Constraint("Horizontal", 1, 2, 4, 2))
sketch12.addConstraint(Sketcher.Constraint("Horizontal", 3, 2, 6, 2))
sketch12.addConstraint(Sketcher.Constraint("Equal", 3, 5))
sketch12.addConstraint(Sketcher.Constraint("DistanceX", 1, 1, 1, 2, Q("15 mm")))
sketch12.addConstraint(Sketcher.Constraint("DistanceY", 0, 1, 0, 2, Q("25 mm")))
sketch12.addConstraint(Sketcher.Constraint("DistanceX", -1, 1, 0, 2, Q("45 mm")))
sketch12.addConstraint(Sketcher.Constraint("DistanceY", -1, 1, 0, 2, Q("30 mm")))
sketch12.addConstraint(Sketcher.Constraint("DistanceX", -1, 1, 4, 2, Q("20 mm")))
pocket8 = body.newObject("PartDesign::Pocket", "Pocket007")
pocket8.Profile = sketch12
pocket8.Length = 5
pocket8.Reversed = True

doc.recompute()
